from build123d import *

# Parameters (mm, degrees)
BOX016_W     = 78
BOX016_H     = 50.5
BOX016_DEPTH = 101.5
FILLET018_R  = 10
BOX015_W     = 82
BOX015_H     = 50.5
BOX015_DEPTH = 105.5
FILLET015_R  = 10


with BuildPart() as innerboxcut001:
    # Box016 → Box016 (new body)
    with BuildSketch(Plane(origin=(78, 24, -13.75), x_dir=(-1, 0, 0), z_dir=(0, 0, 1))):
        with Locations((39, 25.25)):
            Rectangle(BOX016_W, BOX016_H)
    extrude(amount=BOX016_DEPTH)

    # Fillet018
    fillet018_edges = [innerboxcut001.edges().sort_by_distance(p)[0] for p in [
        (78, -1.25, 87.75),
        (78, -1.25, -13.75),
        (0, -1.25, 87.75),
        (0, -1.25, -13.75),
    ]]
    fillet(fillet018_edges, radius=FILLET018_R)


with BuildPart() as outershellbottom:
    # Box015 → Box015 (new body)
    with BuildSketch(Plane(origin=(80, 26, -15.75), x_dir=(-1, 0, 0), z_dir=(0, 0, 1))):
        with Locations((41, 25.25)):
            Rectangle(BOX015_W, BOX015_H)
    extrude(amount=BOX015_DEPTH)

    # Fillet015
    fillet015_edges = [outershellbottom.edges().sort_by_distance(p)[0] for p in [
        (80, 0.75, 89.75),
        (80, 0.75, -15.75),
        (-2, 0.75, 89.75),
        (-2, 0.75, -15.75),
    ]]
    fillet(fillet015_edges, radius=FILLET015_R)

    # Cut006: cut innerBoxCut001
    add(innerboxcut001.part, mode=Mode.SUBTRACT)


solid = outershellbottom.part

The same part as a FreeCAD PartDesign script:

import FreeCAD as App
import Part
import Sketcher


def edges_at(feature, points):
    """Names of the edges that pass closest to the given points."""
    edges = feature.Shape.Edges
    near = lambda p: min(range(len(edges)), key=lambda i: edges[i].distToShape(Part.Vertex(*p))[0])
    return sorted({f"Edge{near(p) + 1}" for p in points})


def add_polygon(sketch, points):
    """Adds a closed chain of lines whose ends are joined by coincident constraints."""
    first, n = sketch.GeometryCount, len(points)
    for a, b in zip(points, points[1:] + points[:1]):
        sketch.addGeometry(Part.LineSegment(App.Vector(*a, 0), App.Vector(*b, 0)), False)
    for i in range(n):
        sketch.addConstraint(Sketcher.Constraint("Coincident", first + i, 2, first + (i + 1) % n, 1))

doc = App.newDocument("Part")
params = doc.addObject("Spreadsheet::Sheet", "Params")
for row, (alias, value) in enumerate([
    ("sketch1_width", "78 mm"),
    ("sketch1_height", "50.5 mm"),
    ("pad1_length", "101.5 mm"),
    ("fillet_radius", "10 mm"),
    ("sketch2_width", "82 mm"),
    ("sketch2_height", "50.5 mm"),
    ("pad2_length", "105.5 mm"),
    ("fillet2_radius", "10 mm"),
], start=1):
    params.set(f"A{row}", alias)
    params.set(f"B{row}", "=" + value)
    params.setAlias(f"B{row}", alias)

body = doc.addObject("PartDesign::Body", "Body")

# Sketch on XY plane
sketch1 = body.newObject("Sketcher::SketchObject", "Sketch")
sketch1.AttachmentSupport = (doc.getObject("XY_Plane"), [""])
sketch1.MapMode = "FlatFace"
sketch1.AttachmentOffset = App.Placement(App.Vector(0, 0, -13.75), App.Rotation())
add_polygon(sketch1, [(78, -26), (78, 24), (0, 24), (0, -26)])  # lines 0-3
sketch1.addConstraint(Sketcher.Constraint("Vertical", 0))
sketch1.addConstraint(Sketcher.Constraint("Horizontal", 1))
sketch1.addConstraint(Sketcher.Constraint("Vertical", 2))
sketch1.addConstraint(Sketcher.Constraint("Horizontal", 3))
sketch1.addConstraint(Sketcher.Constraint("PointOnObject", 1, 2, -2))
sketch1.addConstraint(Sketcher.Constraint("DistanceX", 1, 2, 1, 1, 78.0))
sketch1.addConstraint(Sketcher.Constraint("DistanceY", 0, 1, 0, 2, 50.5))
sketch1.addConstraint(Sketcher.Constraint("DistanceY", -1, 1, 0, 2, 24.0))
sketch1.setExpression("Constraints[9]", "Params.sketch1_width")
sketch1.setExpression("Constraints[10]", "Params.sketch1_height")
pad1 = body.newObject("PartDesign::Pad", "Pad")
pad1.Profile = sketch1
pad1.setExpression("Length", "Params.pad1_length")
doc.recompute()

fillet = body.newObject("PartDesign::Fillet", "Fillet")
fillet.Base = (pad1, edges_at(pad1, [
    (78, -1.25, 87.75),
    (78, -1.25, -13.75),
    (0, -1.25, 87.75),
    (0, -1.25, -13.75),
]))
fillet.setExpression("Radius", "Params.fillet_radius")
body2 = doc.addObject("PartDesign::Body", "Body001")

# Sketch on XY plane
sketch2 = body2.newObject("Sketcher::SketchObject", "Sketch001")
sketch2.AttachmentSupport = (doc.getObject("XY_Plane001"), [""])
sketch2.MapMode = "FlatFace"
sketch2.AttachmentOffset = App.Placement(App.Vector(0, 0, -15.75), App.Rotation())
add_polygon(sketch2, [(80, -24), (80, 26), (-2, 26), (-2, -24)])  # lines 0-3
sketch2.addConstraint(Sketcher.Constraint("Vertical", 0))
sketch2.addConstraint(Sketcher.Constraint("Horizontal", 1))
sketch2.addConstraint(Sketcher.Constraint("Vertical", 2))
sketch2.addConstraint(Sketcher.Constraint("Horizontal", 3))
sketch2.addConstraint(Sketcher.Constraint("DistanceX", 1, 2, 1, 1, 82.0))
sketch2.addConstraint(Sketcher.Constraint("DistanceY", 0, 1, 0, 2, 50.5))
sketch2.addConstraint(Sketcher.Constraint("DistanceX", -1, 1, 0, 2, 80.0))
sketch2.addConstraint(Sketcher.Constraint("DistanceY", -1, 1, 0, 2, 26.0))
sketch2.setExpression("Constraints[8]", "Params.sketch2_width")
sketch2.setExpression("Constraints[9]", "Params.sketch2_height")
pad2 = body2.newObject("PartDesign::Pad", "Pad001")
pad2.Profile = sketch2
pad2.setExpression("Length", "Params.pad2_length")
doc.recompute()

fillet2 = body2.newObject("PartDesign::Fillet", "Fillet001")
fillet2.Base = (pad2, edges_at(pad2, [
    (80, 0.75, 89.75),
    (80, 0.75, -15.75),
    (-2, 0.75, 89.75),
    (-2, 0.75, -15.75),
]))
fillet2.setExpression("Radius", "Params.fillet2_radius")
doc.recompute()

boolean = body2.newObject("PartDesign::Boolean", "Boolean")
boolean.Type = "Cut"
boolean.addObjects([body])

doc.recompute()
